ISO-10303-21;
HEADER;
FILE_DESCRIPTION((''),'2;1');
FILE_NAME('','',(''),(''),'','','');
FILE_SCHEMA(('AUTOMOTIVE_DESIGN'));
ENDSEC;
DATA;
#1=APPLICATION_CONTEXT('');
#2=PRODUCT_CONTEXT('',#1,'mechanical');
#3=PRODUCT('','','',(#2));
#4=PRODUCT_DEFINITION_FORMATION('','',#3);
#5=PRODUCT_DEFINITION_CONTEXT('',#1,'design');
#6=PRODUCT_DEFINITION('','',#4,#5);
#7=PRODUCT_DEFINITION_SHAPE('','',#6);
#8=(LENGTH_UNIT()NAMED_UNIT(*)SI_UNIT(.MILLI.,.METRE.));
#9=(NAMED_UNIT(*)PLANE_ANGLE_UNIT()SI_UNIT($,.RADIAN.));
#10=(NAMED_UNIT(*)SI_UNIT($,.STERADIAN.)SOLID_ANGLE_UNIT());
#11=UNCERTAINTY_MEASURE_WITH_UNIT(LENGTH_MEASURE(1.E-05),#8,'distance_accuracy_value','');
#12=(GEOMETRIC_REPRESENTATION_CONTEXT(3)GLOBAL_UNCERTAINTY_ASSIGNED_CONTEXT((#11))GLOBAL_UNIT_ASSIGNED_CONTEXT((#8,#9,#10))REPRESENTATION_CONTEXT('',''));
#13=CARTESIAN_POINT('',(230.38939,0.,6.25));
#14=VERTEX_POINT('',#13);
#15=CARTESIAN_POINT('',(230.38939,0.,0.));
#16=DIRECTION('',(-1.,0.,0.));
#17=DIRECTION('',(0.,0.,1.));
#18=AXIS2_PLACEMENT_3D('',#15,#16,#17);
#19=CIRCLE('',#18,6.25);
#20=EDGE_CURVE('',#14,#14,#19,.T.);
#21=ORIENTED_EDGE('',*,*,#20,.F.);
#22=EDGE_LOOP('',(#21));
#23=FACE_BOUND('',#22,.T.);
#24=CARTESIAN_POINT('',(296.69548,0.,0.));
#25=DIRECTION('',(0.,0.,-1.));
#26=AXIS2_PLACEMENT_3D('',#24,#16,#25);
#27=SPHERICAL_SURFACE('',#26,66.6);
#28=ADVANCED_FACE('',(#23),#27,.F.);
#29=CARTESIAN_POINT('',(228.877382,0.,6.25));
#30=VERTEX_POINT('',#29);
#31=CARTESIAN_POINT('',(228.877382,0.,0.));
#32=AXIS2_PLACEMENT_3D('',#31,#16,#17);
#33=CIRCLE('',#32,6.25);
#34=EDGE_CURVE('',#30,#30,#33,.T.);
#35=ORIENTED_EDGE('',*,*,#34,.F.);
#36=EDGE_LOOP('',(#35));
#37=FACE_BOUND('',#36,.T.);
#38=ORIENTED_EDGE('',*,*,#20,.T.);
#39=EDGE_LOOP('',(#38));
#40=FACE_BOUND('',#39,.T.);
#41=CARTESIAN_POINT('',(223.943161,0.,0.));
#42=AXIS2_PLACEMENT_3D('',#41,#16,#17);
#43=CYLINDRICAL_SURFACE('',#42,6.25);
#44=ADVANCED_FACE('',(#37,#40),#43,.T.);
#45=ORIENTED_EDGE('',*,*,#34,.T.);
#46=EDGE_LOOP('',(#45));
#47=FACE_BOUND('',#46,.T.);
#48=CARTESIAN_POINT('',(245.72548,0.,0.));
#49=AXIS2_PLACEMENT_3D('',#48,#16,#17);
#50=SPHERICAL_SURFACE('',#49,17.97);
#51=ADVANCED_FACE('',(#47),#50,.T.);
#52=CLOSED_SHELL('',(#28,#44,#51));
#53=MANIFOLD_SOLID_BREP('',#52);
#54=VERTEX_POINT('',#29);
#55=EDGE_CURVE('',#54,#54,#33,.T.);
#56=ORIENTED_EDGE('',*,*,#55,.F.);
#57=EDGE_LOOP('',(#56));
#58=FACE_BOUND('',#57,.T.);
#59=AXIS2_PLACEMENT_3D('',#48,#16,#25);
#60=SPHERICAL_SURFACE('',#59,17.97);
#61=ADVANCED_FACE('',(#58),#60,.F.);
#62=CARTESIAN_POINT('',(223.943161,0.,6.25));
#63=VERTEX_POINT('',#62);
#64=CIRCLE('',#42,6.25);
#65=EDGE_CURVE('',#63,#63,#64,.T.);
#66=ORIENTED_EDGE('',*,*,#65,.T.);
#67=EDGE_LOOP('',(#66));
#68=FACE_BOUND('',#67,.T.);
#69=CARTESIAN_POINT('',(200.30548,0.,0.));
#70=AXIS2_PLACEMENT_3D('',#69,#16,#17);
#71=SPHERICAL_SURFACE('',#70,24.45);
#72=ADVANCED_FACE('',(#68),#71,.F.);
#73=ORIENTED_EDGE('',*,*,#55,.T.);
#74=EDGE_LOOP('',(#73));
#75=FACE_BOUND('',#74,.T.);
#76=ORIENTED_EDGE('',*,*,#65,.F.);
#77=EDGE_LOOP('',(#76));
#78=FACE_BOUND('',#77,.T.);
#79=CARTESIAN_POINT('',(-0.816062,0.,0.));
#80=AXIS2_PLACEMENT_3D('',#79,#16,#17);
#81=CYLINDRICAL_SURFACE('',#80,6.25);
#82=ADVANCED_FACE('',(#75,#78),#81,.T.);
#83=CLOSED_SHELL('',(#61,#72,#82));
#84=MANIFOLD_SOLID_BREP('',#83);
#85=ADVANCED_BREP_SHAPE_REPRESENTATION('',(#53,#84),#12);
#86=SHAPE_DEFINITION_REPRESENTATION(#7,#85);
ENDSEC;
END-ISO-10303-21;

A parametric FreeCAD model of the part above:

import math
import FreeCAD as App
import Part
import Sketcher
Q = App.Units.Quantity

doc = App.newDocument("Part")
body = doc.addObject("PartDesign::Body", "Body")

# Sketch on XZ plane
sketch1 = doc.addObject("Sketcher::SketchObject", "Sketch")
body.addObject(sketch1)
sketch1.AttachmentSupport = (doc.XZ_Plane, [""])
sketch1.MapMode = "FlatFace"
sketch1.addGeometry([
    Part.LineSegment(App.Vector(228.9, -6.2, 0), App.Vector(223.9, -6.2, 0)),
    Part.ArcOfCircle(Part.Circle(App.Vector(200.3, 0, 0), App.Vector(0, 0, 1), 24.5), math.radians(-14.81), math.radians(0)),
    Part.LineSegment(App.Vector(224.8, 0, 0), App.Vector(227.8, 0, 0)),
    Part.ArcOfCircle(Part.Circle(App.Vector(245.7, 0, 0), App.Vector(0, 0, 1), 18), math.radians(180), math.radians(200)),
], False)
sketch1.addConstraint([
    Sketcher.Constraint("Coincident", 0, 2, 1, 1),
    Sketcher.Constraint("Coincident", 1, 2, 2, 1),
    Sketcher.Constraint("Coincident", 2, 2, 3, 1),
    Sketcher.Constraint("Coincident", 3, 2, 0, 1),
    Sketcher.Constraint("Horizontal", 0),
    Sketcher.Constraint("Horizontal", 2),
    Sketcher.Constraint("PointOnObject", 1, 3, -1),
    Sketcher.Constraint("PointOnObject", 3, 3, -1),
    Sketcher.Constraint("PointOnObject", 1, 2, -1),
    Sketcher.Constraint("DistanceX", 2, 1, 2, 2, Q("3 mm")),
    Sketcher.Constraint("Radius", 1, Q("24.45 mm")),
    Sketcher.Constraint("Radius", 3, Q("17.97 mm")),
    Sketcher.Constraint("DistanceY", 0, 2, -1, 1, Q("6.25 mm")),
    Sketcher.Constraint("DistanceX", -1, 1, 1, 3, Q("200.305479 mm")),
])
revolution = doc.addObject("PartDesign::Revolution", "Revolution")
body.addObject(revolution)
revolution.Profile = sketch1
revolution.ReferenceAxis = (sketch1, ["H_Axis"])
revolution.Angle = 360
body2 = doc.addObject("PartDesign::Body", "Body001")

# Sketch on XZ plane
sketch2 = doc.addObject("Sketcher::SketchObject", "Sketch001")
body2.addObject(sketch2)
sketch2.AttachmentSupport = (doc.getObject("XZ_Plane001"), [""])
sketch2.MapMode = "FlatFace"
sketch2.addGeometry([
    Part.LineSegment(App.Vector(230.4, -6.2, 0), App.Vector(228.9, -6.2, 0)),
    Part.ArcOfCircle(Part.Circle(App.Vector(245.7, 0, 0), App.Vector(0, 0, 1), 18), math.radians(180), math.radians(200)),
    Part.LineSegment(App.Vector(227.8, 0, 0), App.Vector(230.1, 0, 0)),
    Part.ArcOfCircle(Part.Circle(App.Vector(296.7, 0, 0), App.Vector(0, 0, 1), 66.6), math.radians(-180), math.radians(-174.62)),
], False)
sketch2.addConstraint([
    Sketcher.Constraint("Coincident", 0, 2, 1, 2),
    Sketcher.Constraint("Coincident", 1, 1, 2, 1),
    Sketcher.Constraint("Coincident", 2, 2, 3, 1),
    Sketcher.Constraint("Coincident", 3, 2, 0, 1),
    Sketcher.Constraint("Horizontal", 0),
    Sketcher.Constraint("Horizontal", 2),
    Sketcher.Constraint("PointOnObject", 1, 3, -1),
    Sketcher.Constraint("PointOnObject", 3, 3, -1),
    Sketcher.Constraint("PointOnObject", 1, 1, -1),
    Sketcher.Constraint("Radius", 3, Q("66.6 mm")),
    Sketcher.Constraint("Radius", 1, Q("17.97 mm")),
    Sketcher.Constraint("DistanceX", 2, 1, 2, 2, Q("2.34 mm")),
    Sketcher.Constraint("DistanceY", 0, 2, -1, 1, Q("6.25 mm")),
    Sketcher.Constraint("DistanceX", -1, 1, 1, 3, Q("245.72548 mm")),
])
revolution2 = doc.addObject("PartDesign::Revolution", "Revolution001")
body2.addObject(revolution2)
revolution2.Profile = sketch2
revolution2.ReferenceAxis = (sketch2, ["H_Axis"])
revolution2.Angle = 360

doc.recompute()
